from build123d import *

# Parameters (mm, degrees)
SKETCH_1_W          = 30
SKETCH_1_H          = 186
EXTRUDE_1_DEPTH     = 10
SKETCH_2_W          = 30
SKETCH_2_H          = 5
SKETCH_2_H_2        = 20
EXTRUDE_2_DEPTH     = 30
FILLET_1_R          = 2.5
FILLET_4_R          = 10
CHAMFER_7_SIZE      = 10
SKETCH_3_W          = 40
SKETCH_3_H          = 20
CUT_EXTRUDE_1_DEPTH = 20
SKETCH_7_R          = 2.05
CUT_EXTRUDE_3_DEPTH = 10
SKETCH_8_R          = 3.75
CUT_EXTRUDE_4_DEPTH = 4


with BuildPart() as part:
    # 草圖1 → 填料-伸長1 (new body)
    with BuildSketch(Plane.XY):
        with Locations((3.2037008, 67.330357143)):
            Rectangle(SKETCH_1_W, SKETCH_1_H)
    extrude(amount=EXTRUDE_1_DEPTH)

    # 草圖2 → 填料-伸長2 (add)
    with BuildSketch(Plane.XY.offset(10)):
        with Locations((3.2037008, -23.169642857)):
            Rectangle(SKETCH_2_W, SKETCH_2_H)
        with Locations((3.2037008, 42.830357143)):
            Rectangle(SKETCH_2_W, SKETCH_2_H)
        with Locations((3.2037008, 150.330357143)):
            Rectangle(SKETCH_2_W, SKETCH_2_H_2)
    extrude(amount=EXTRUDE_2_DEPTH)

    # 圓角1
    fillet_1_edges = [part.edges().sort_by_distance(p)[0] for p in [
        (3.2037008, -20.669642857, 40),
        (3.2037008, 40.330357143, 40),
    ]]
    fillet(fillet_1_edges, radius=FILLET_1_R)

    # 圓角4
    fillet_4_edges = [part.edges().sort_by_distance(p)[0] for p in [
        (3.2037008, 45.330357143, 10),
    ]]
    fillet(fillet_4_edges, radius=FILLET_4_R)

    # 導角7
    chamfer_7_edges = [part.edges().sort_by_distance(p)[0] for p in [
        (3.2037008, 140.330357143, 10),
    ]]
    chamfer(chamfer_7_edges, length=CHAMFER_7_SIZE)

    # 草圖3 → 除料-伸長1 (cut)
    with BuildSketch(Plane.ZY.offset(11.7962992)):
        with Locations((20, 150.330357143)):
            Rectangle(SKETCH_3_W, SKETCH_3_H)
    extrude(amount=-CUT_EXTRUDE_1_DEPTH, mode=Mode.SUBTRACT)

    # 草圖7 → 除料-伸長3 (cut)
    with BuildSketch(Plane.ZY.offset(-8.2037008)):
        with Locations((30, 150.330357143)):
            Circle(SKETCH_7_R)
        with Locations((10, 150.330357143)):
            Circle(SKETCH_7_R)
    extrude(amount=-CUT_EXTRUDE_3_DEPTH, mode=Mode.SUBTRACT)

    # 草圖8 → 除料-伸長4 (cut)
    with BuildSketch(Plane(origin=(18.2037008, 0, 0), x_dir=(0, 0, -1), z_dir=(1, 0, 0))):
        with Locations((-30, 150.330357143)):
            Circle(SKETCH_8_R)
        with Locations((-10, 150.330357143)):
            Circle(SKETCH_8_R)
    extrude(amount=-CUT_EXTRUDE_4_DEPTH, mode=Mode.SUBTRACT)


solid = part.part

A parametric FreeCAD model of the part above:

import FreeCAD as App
import Part
import Sketcher

V = App.Vector
Q = App.Units.Quantity


def edges_at(feature, points):
    """Names of the edges that pass closest to the given points."""
    edges = feature.Shape.Edges
    near = lambda p: min(range(len(edges)), key=lambda i: edges[i].distToShape(Part.Vertex(*p))[0])
    return sorted({f"Edge{near(p) + 1}" for p in points})


def add_polygon(sketch, points):
    """Adds a closed chain of lines whose ends are joined by coincident constraints."""
    first, n = sketch.GeometryCount, len(points)
    for a, b in zip(points, points[1:] + points[:1]):
        sketch.addGeometry(Part.LineSegment(App.Vector(*a, 0), App.Vector(*b, 0)), False)
    for i in range(n):
        sketch.addConstraint(Sketcher.Constraint("Coincident", first + i, 2, first + (i + 1) % n, 1))

doc = App.newDocument("Part")
body = doc.addObject("PartDesign::Body", "Body")

# Sketch on XY plane
sketch1 = doc.addObject("Sketcher::SketchObject", "Sketch")
body.addObject(sketch1)
sketch1.AttachmentSupport = (doc.XY_Plane, [""])
sketch1.MapMode = "FlatFace"
add_polygon(sketch1, [(-12, 160), (-12, -26), (18, -26), (18, 160)])  # lines 0-3
sketch1.addConstraint([
    Sketcher.Constraint("Vertical", 0),
    Sketcher.Constraint("Horizontal", 1),
    Sketcher.Constraint("Vertical", 2),
    Sketcher.Constraint("Horizontal", 3),
    Sketcher.Constraint("DistanceX", 1, 1, 1, 2, Q("30 mm")),
    Sketcher.Constraint("DistanceY", 0, 2, 0, 1, Q("186 mm")),
    Sketcher.Constraint("DistanceX", 0, 2, -1, 1, Q("11.796299 mm")),
    Sketcher.Constraint("DistanceY", 0, 2, -1, 1, Q("25.669643 mm")),
])
pad1 = doc.addObject("PartDesign::Pad", "Pad")
body.addObject(pad1)
pad1.Profile = sketch1
pad1.Length = 10

# Sketch on XY plane
sketch2 = doc.addObject("Sketcher::SketchObject", "Sketch001")
body.addObject(sketch2)
sketch2.AttachmentSupport = (doc.XY_Plane, [""])
sketch2.MapMode = "FlatFace"
sketch2.AttachmentOffset = App.Placement(V(0, 0, 10), App.Rotation())
add_polygon(sketch2, [(-12, -21), (-12, -26), (18, -26), (18, -21)])  # lines 0-3
add_polygon(sketch2, [(-12, 45), (-12, 40), (18, 40), (18, 45)])  # lines 4-7
add_polygon(sketch2, [(-12, 160), (-12, 140), (18, 140), (18, 160)])  # lines 8-11
sketch2.addConstraint([
    Sketcher.Constraint("Vertical", 0),
    Sketcher.Constraint("Horizontal", 1),
    Sketcher.Constraint("Vertical", 2),
    Sketcher.Constraint("Horizontal", 3),
    Sketcher.Constraint("Vertical", 4),
    Sketcher.Constraint("Horizontal", 5),
    Sketcher.Constraint("Vertical", 6),
    Sketcher.Constraint("Horizontal", 7),
    Sketcher.Constraint("Vertical", 8),
    Sketcher.Constraint("Horizontal", 9),
    Sketcher.Constraint("Vertical", 10),
    Sketcher.Constraint("Horizontal", 11),
    Sketcher.Constraint("Vertical", 3, 2, 4, 2),
    Sketcher.Constraint("Vertical", 2, 2, 5, 2),
    Sketcher.Constraint("Vertical", 7, 2, 8, 2),
    Sketcher.Constraint("Vertical", 6, 2, 9, 2),
    Sketcher.Constraint("Equal", 2, 4),
    Sketcher.Constraint("DistanceX", 1, 1, 1, 2, Q("30 mm")),
    Sketcher.Constraint("DistanceY", 0, 2, 0, 1, Q("5 mm")),
    Sketcher.Constraint("DistanceY", 8, 2, 8, 1, Q("20 mm")),
    Sketcher.Constraint("DistanceY", 3, 2, 4, 2, Q("61 mm")),
    Sketcher.Constraint("DistanceY", 7, 2, 8, 2, Q("95 mm")),
    Sketcher.Constraint("DistanceX", 0, 2, -1, 1, Q("11.796299 mm")),
    Sketcher.Constraint("DistanceY", 0, 2, -1, 1, Q("25.669643 mm")),
])
pad2 = doc.addObject("PartDesign::Pad", "Pad001")
body.addObject(pad2)
pad2.Profile = sketch2
pad2.Length = 30
doc.recompute()

fillet = doc.addObject("PartDesign::Fillet", "Fillet")
body.addObject(fillet)
fillet.Base = (pad2, edges_at(pad2, [(3.204, -20.67, 40), (3.204, 40.33, 40)]))
fillet.Radius = 2.5
doc.recompute()

fillet2 = doc.addObject("PartDesign::Fillet", "Fillet001")
body.addObject(fillet2)
fillet2.Base = (fillet, edges_at(fillet, [(3.204, 45.33, 10)]))
fillet2.Radius = 10
doc.recompute()

chamfer = doc.addObject("PartDesign::Chamfer", "Chamfer")
body.addObject(chamfer)
chamfer.Base = (fillet2, edges_at(fillet2, [(3.204, 140.33, 10)]))
chamfer.Size = 10

# Sketch on YZ plane
sketch3 = doc.addObject("Sketcher::SketchObject", "Sketch002")
body.addObject(sketch3)
sketch3.AttachmentSupport = (doc.YZ_Plane, [""])
sketch3.MapMode = "FlatFace"
sketch3.AttachmentOffset = App.Placement(V(0, 0, -11.796299), App.Rotation())
add_polygon(sketch3, [(160, 0), (140, 0), (140, 40), (160, 40)])  # lines 0-3
sketch3.addConstraint([
    Sketcher.Constraint("Horizontal", 0),
    Sketcher.Constraint("Vertical", 1),
    Sketcher.Constraint("Horizontal", 2),
    Sketcher.Constraint("Vertical", 3),
    Sketcher.Constraint("PointOnObject", 0, 2, -1),
    Sketcher.Constraint("DistanceX", 0, 2, 0, 1, Q("20 mm")),
    Sketcher.Constraint("DistanceY", 1, 1, 1, 2, Q("40 mm")),
    Sketcher.Constraint("DistanceX", -1, 1, 0, 2, Q("140.330357 mm")),
])
pocket1 = doc.addObject("PartDesign::Pocket", "Pocket")
body.addObject(pocket1)
pocket1.Profile = sketch3
pocket1.Length = 20
pocket1.Reversed = True

# Sketch on YZ plane
sketch4 = doc.addObject("Sketcher::SketchObject", "Sketch003")
body.addObject(sketch4)
sketch4.AttachmentSupport = (doc.YZ_Plane, [""])
sketch4.MapMode = "FlatFace"
sketch4.AttachmentOffset = App.Placement(V(0, 0, 8.203701), App.Rotation())
sketch4.addGeometry([
    Part.Circle(V(150.3, 30, 0), V(0, 0, 1), 2),
    Part.Circle(V(150.3, 10, 0), V(0, 0, 1), 2),
], False)
sketch4.addConstraint([
    Sketcher.Constraint("Equal", 0, 1),
    Sketcher.Constraint("Vertical", 0, 3, 1, 3),
    Sketcher.Constraint("Diameter", 0, Q("4.1 mm")),
    Sketcher.Constraint("DistanceY", -1, 1, 0, 3, Q("30 mm")),
    Sketcher.Constraint("DistanceY", -1, 1, 1, 3, Q("10 mm")),
    Sketcher.Constraint("DistanceX", -1, 1, 0, 3, Q("150.330357 mm")),
])
pocket2 = doc.addObject("PartDesign::Pocket", "Pocket001")
body.addObject(pocket2)
pocket2.Profile = sketch4
pocket2.Length = 10
pocket2.Reversed = True

# Sketch on YZ plane
sketch5 = doc.addObject("Sketcher::SketchObject", "Sketch004")
body.addObject(sketch5)
sketch5.AttachmentSupport = (doc.YZ_Plane, [""])
sketch5.MapMode = "FlatFace"
sketch5.AttachmentOffset = App.Placement(V(0, 0, 18.203701), App.Rotation())
sketch5.addGeometry([
    Part.Circle(V(150.3, 30, 0), V(0, 0, 1), 3.8),
    Part.Circle(V(150.3, 10, 0), V(0, 0, 1), 3.8),
], False)
sketch5.addConstraint([
    Sketcher.Constraint("Equal", 0, 1),
    Sketcher.Constraint("Vertical", 0, 3, 1, 3),
    Sketcher.Constraint("Diameter", 0, Q("7.5 mm")),
    Sketcher.Constraint("DistanceY", -1, 1, 0, 3, Q("30 mm")),
    Sketcher.Constraint("DistanceY", -1, 1, 1, 3, Q("10 mm")),
    Sketcher.Constraint("DistanceX", -1, 1, 0, 3, Q("150.330357 mm")),
])
pocket3 = doc.addObject("PartDesign::Pocket", "Pocket002")
body.addObject(pocket3)
pocket3.Profile = sketch5
pocket3.Length = 4

doc.recompute()
